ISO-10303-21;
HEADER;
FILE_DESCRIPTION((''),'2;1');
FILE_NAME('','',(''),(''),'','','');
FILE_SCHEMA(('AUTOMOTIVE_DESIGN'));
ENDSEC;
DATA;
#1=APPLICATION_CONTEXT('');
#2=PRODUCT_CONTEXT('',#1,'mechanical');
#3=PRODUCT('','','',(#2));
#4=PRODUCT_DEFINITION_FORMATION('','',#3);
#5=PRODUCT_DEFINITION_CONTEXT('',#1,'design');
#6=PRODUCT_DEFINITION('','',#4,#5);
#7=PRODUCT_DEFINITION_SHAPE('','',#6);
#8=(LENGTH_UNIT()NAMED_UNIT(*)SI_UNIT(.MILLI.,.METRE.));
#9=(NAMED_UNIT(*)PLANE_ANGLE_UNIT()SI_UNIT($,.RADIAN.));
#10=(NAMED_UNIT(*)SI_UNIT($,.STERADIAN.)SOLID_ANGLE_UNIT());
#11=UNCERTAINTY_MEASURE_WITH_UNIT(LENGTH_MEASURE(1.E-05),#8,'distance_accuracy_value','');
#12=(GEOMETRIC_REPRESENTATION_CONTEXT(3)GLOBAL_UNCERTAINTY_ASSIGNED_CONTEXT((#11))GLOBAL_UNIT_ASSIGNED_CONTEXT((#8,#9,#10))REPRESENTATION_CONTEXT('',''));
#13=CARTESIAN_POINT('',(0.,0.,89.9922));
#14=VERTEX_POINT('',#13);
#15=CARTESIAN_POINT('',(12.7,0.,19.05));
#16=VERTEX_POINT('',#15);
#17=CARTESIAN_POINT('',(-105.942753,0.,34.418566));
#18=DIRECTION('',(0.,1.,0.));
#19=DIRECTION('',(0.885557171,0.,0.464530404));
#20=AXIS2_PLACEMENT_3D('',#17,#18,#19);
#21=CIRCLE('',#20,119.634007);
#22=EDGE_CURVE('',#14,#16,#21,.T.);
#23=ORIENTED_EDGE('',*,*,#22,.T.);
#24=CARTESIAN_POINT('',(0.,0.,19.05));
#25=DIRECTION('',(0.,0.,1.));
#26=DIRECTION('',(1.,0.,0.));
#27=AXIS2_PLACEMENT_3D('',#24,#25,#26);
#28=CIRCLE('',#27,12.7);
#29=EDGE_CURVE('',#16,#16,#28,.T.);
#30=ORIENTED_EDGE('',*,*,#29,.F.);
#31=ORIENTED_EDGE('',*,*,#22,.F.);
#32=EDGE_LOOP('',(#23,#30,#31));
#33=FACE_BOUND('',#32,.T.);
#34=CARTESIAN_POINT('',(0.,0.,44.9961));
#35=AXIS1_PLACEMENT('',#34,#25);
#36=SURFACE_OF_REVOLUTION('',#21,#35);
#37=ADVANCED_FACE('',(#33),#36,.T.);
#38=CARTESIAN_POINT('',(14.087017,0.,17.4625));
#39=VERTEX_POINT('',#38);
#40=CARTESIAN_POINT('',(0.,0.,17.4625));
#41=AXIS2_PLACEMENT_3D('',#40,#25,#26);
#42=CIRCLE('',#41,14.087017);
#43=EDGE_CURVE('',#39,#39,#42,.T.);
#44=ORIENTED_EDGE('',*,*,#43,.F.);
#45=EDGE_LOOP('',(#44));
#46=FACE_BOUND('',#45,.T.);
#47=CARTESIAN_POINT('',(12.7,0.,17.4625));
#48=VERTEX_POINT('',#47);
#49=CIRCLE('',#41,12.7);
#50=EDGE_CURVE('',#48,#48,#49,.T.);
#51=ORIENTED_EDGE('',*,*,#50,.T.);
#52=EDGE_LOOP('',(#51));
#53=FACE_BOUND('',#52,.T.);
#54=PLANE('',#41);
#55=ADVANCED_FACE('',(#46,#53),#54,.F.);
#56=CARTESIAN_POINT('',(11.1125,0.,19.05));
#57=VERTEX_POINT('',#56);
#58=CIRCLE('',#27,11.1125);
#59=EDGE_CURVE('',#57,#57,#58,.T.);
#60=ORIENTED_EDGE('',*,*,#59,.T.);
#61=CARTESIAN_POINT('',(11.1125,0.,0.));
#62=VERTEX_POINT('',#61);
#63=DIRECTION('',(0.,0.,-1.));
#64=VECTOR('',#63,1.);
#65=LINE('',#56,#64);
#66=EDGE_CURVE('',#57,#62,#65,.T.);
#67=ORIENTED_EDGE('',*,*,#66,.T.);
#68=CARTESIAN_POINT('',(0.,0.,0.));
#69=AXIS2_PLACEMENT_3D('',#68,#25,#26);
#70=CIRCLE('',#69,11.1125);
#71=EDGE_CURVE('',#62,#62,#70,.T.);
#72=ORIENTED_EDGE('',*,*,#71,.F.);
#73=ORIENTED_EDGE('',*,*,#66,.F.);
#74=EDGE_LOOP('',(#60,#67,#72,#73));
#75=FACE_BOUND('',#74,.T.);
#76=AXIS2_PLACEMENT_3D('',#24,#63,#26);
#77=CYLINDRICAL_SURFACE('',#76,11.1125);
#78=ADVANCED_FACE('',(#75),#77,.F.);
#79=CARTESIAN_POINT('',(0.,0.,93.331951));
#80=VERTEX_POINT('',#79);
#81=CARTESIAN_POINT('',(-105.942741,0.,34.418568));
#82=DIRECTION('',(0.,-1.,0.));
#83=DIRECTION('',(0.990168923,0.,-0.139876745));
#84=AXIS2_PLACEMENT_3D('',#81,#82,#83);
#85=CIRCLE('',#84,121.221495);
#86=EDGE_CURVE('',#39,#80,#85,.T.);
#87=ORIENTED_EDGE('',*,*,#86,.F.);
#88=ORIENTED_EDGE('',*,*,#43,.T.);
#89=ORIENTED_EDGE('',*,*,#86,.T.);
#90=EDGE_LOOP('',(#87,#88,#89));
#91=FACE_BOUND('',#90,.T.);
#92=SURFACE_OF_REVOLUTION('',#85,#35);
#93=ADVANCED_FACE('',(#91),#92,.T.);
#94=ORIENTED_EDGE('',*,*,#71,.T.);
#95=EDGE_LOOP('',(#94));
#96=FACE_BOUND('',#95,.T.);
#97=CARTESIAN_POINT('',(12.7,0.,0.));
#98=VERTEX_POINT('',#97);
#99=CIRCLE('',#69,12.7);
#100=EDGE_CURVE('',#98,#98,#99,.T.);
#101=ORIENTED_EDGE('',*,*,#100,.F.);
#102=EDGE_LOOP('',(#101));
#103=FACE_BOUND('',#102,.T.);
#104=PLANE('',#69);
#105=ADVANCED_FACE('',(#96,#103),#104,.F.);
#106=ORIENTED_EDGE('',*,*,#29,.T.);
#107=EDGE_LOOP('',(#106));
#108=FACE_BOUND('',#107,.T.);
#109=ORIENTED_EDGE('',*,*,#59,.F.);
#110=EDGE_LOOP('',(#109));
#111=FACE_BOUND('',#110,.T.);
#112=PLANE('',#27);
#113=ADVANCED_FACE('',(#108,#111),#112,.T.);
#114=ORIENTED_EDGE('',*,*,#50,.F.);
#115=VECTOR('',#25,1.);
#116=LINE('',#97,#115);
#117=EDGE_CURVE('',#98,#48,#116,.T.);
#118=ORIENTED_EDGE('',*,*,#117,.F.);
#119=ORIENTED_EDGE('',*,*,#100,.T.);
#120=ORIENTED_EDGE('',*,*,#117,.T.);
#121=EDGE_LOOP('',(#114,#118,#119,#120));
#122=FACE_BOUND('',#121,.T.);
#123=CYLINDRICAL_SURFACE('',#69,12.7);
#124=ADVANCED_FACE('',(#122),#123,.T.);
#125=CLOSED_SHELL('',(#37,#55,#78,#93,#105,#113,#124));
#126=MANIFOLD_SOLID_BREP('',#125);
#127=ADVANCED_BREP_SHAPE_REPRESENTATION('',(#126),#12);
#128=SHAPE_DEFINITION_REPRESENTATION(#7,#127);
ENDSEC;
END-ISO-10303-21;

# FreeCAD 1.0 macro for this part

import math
import FreeCAD as App
import Part
import Sketcher
Q = App.Units.Quantity

doc = App.newDocument("Part")
params = doc.addObject("Spreadsheet::Sheet", "Params")
for row, (alias, value) in enumerate([
    ("sketch1_height", "0.75 in"),
    ("sketch1_width", "0.0625 in"),
    ("sketch1_height2", "0.6875 in"),
    ("revolution_angle", "360 deg"),
], start=1):
    params.set(f"A{row}", alias)
    params.set(f"B{row}", "=" + value)
    params.setAlias(f"B{row}", alias)

body = doc.addObject("PartDesign::Body", "Body")

# Sketch on XZ plane
sketch1 = body.newObject("Sketcher::SketchObject", "Sketch")
sketch1.AttachmentSupport = (doc.getObject("XZ_Plane"), [""])
sketch1.MapMode = "FlatFace"
sketch1.addGeometry(Part.LineSegment(App.Vector(11.1, 19.1, 0), App.Vector(11.1, 0, 0)), False)
sketch1.addGeometry(Part.LineSegment(App.Vector(11.1, 0, 0), App.Vector(12.7, 0, 0)), False)
sketch1.addGeometry(Part.LineSegment(App.Vector(12.7, 0, 0), App.Vector(12.7, 17.5, 0)), False)
sketch1.addGeometry(Part.LineSegment(App.Vector(12.7, 17.5, 0), App.Vector(14.1, 17.5, 0)), False)
sketch1.addGeometry(Part.ArcOfCircle(Part.Circle(App.Vector(-105.9, 34.4, 0), App.Vector(0, 0, 1), 121.2), math.radians(-8), math.radians(29)), False)
sketch1.addGeometry(Part.LineSegment(App.Vector(0, 93.3, 0), App.Vector(0, 90, 0)), False)
sketch1.addGeometry(Part.ArcOfCircle(Part.Circle(App.Vector(-105.9, 34.4, 0), App.Vector(0, 0, 1), 119.6), math.radians(-7), math.radians(28)), False)
sketch1.addGeometry(Part.LineSegment(App.Vector(12.7, 19.1, 0), App.Vector(11.1, 19.1, 0)), False)
sketch1.addConstraint(Sketcher.Constraint("Coincident", 0, 2, 1, 1))
sketch1.addConstraint(Sketcher.Constraint("Coincident", 1, 2, 2, 1))
sketch1.addConstraint(Sketcher.Constraint("Coincident", 2, 2, 3, 1))
sketch1.addConstraint(Sketcher.Constraint("Coincident", 3, 2, 4, 1))
sketch1.addConstraint(Sketcher.Constraint("Coincident", 4, 2, 5, 1))
sketch1.addConstraint(Sketcher.Constraint("Coincident", 5, 2, 6, 2))
sketch1.addConstraint(Sketcher.Constraint("Coincident", 6, 1, 7, 1))
sketch1.addConstraint(Sketcher.Constraint("Coincident", 7, 2, 0, 1))
sketch1.addConstraint(Sketcher.Constraint("Vertical", 0))
sketch1.addConstraint(Sketcher.Constraint("Horizontal", 1))
sketch1.addConstraint(Sketcher.Constraint("Vertical", 2))
sketch1.addConstraint(Sketcher.Constraint("Horizontal", 3))
sketch1.addConstraint(Sketcher.Constraint("Vertical", 5))
sketch1.addConstraint(Sketcher.Constraint("Horizontal", 7))
sketch1.addConstraint(Sketcher.Constraint("PointOnObject", 0, 2, -1))
sketch1.addConstraint(Sketcher.Constraint("PointOnObject", 4, 2, -2))
sketch1.addConstraint(Sketcher.Constraint("Horizontal", 4, 3, 6, 3))
sketch1.addConstraint(Sketcher.Constraint("Vertical", 2, 2, 6, 1))
sketch1.addConstraint(Sketcher.Constraint("DistanceY", 0, 2, 0, 1, Q("0.75 in")))
sketch1.addConstraint(Sketcher.Constraint("DistanceX", -1, 1, 1, 2, Q("0.5 in")))
sketch1.addConstraint(Sketcher.Constraint("Radius", 4, Q("4.7724998 in")))
sketch1.addConstraint(Sketcher.Constraint("DistanceX", 1, 1, 1, 2, Q("0.0625 in")))
sketch1.addConstraint(Sketcher.Constraint("DistanceY", 2, 1, 2, 2, Q("0.6875 in")))
sketch1.addConstraint(Sketcher.Constraint("DistanceY", -1, 1, 5, 2, Q("3.543 in")))
sketch1.addConstraint(Sketcher.Constraint("Radius", 6, 119.634007))
sketch1.addConstraint(Sketcher.Constraint("DistanceY", 5, 2, 5, 1, 3.339751))
sketch1.setExpression("Constraints[18]", "Params.sketch1_height")
sketch1.setExpression("Constraints[21]", "Params.sketch1_width")
sketch1.setExpression("Constraints[22]", "Params.sketch1_height2")
revolution = body.newObject("PartDesign::Revolution", "Revolution")
revolution.Profile = sketch1
revolution.ReferenceAxis = (sketch1, ["V_Axis"])
revolution.setExpression("Angle", "Params.revolution_angle")

doc.recompute()
